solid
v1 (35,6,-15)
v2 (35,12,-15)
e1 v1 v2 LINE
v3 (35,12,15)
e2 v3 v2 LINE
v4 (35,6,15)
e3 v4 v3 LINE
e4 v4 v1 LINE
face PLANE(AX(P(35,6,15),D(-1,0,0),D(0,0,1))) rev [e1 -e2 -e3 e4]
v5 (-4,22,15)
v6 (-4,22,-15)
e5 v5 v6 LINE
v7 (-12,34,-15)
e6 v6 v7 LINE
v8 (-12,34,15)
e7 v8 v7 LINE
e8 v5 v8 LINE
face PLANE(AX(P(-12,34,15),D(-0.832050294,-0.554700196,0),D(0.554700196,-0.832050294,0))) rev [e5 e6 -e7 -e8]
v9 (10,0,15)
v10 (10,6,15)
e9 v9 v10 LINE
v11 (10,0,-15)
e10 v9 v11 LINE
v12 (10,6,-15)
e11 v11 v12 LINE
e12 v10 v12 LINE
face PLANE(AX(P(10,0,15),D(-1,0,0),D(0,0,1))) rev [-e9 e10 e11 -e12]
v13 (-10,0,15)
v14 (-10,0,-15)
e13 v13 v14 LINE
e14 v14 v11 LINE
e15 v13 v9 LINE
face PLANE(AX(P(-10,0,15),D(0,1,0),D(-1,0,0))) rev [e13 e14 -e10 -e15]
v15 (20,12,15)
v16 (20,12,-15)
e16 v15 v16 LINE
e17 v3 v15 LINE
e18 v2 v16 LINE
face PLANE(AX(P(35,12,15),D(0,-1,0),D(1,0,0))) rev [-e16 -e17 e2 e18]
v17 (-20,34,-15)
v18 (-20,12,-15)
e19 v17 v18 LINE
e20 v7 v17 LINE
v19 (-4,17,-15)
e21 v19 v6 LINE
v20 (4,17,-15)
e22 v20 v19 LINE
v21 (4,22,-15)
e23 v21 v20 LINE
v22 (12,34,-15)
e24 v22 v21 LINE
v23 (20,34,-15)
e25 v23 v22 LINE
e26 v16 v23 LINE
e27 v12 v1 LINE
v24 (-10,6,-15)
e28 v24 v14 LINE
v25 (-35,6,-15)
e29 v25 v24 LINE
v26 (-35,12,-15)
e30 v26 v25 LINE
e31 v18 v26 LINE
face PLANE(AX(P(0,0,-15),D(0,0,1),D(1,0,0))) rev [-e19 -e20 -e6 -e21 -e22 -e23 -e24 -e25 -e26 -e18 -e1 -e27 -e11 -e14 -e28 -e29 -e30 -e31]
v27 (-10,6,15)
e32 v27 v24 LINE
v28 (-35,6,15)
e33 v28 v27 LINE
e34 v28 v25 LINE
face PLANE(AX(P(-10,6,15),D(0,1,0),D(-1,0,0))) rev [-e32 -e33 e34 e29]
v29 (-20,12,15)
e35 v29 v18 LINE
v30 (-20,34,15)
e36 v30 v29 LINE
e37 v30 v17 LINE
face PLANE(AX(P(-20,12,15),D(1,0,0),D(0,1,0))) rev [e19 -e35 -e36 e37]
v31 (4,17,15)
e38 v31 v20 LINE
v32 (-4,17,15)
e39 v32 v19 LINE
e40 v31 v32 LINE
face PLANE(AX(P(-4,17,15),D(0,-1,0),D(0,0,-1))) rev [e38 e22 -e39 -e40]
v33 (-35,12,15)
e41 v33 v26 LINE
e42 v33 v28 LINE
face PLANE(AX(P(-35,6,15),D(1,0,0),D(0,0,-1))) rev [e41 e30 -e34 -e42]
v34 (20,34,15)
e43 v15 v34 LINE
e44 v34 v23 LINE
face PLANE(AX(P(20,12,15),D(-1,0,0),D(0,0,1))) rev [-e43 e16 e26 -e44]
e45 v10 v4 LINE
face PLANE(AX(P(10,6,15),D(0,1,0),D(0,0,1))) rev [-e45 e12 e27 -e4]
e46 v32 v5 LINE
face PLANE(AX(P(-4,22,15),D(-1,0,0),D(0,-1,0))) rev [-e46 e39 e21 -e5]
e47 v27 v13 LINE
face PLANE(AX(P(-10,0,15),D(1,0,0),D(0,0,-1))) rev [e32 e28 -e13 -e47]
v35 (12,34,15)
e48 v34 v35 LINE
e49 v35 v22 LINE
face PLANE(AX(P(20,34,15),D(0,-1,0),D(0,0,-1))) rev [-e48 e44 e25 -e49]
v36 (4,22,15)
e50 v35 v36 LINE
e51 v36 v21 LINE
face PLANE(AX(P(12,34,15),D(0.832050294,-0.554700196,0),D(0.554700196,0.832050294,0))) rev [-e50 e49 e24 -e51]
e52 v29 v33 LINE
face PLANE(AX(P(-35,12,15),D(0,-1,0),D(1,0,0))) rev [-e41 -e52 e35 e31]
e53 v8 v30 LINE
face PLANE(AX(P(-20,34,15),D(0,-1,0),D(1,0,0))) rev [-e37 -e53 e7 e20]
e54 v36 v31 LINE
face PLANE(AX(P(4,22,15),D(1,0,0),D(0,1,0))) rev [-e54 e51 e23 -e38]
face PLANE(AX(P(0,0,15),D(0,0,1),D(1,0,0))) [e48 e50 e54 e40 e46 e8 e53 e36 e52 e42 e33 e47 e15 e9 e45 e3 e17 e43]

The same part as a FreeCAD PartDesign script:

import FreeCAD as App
import Part
import Sketcher
from FreeCAD import Vector

doc = App.newDocument("Part")
body = doc.addObject("PartDesign::Body", "Body")

# Sketch on XY plane
sketch1 = body.newObject("Sketcher::SketchObject", "Sketch")
sketch1.AttachmentSupport = (doc.getObject("XY_Plane"), [""])
sketch1.MapMode = "FlatFace"
sketch1.addGeometry([
    Part.LineSegment(Vector(-10, 0, 0), Vector(10, 0, 0)),  # 0
    Part.LineSegment(Vector(10, 0, 0), Vector(10, 6, 0)),  # 1
    Part.LineSegment(Vector(10, 6, 0), Vector(35, 6, 0)),  # 2
    Part.LineSegment(Vector(35, 6, 0), Vector(35, 12, 0)),  # 3
    Part.LineSegment(Vector(35, 12, 0), Vector(20, 12, 0)),  # 4
    Part.LineSegment(Vector(20, 12, 0), Vector(20, 34, 0)),  # 5
    Part.LineSegment(Vector(20, 34, 0), Vector(12, 34, 0)),  # 6
    Part.LineSegment(Vector(12, 34, 0), Vector(4, 22, 0)),  # 7
    Part.LineSegment(Vector(4, 22, 0), Vector(4, 17, 0)),  # 8
    Part.LineSegment(Vector(4, 17, 0), Vector(-4, 17, 0)),  # 9
    Part.LineSegment(Vector(-4, 17, 0), Vector(-4, 22, 0)),  # 10
    Part.LineSegment(Vector(-4, 22, 0), Vector(-12, 34, 0)),  # 11
    Part.LineSegment(Vector(-12, 34, 0), Vector(-20, 34, 0)),  # 12
    Part.LineSegment(Vector(-20, 34, 0), Vector(-20, 12, 0)),  # 13
    Part.LineSegment(Vector(-20, 12, 0), Vector(-35, 12, 0)),  # 14
    Part.LineSegment(Vector(-35, 12, 0), Vector(-35, 6, 0)),  # 15
    Part.LineSegment(Vector(-35, 6, 0), Vector(-10, 6, 0)),  # 16
    Part.LineSegment(Vector(-10, 6, 0), Vector(-10, 0, 0)),  # 17
], False)
sketch1.addConstraint([
    Sketcher.Constraint("Coincident", 0, 2, 1, 1),
    Sketcher.Constraint("Coincident", 1, 2, 2, 1),
    Sketcher.Constraint("Coincident", 2, 2, 3, 1),
    Sketcher.Constraint("Coincident", 3, 2, 4, 1),
    Sketcher.Constraint("Coincident", 4, 2, 5, 1),
    Sketcher.Constraint("Coincident", 5, 2, 6, 1),
    Sketcher.Constraint("Coincident", 6, 2, 7, 1),
    Sketcher.Constraint("Coincident", 7, 2, 8, 1),
    Sketcher.Constraint("Coincident", 8, 2, 9, 1),
    Sketcher.Constraint("Coincident", 9, 2, 10, 1),
    Sketcher.Constraint("Coincident", 10, 2, 11, 1),
    Sketcher.Constraint("Coincident", 11, 2, 12, 1),
    Sketcher.Constraint("Coincident", 12, 2, 13, 1),
    Sketcher.Constraint("Coincident", 13, 2, 14, 1),
    Sketcher.Constraint("Coincident", 14, 2, 15, 1),
    Sketcher.Constraint("Coincident", 15, 2, 16, 1),
    Sketcher.Constraint("Coincident", 16, 2, 17, 1),
    Sketcher.Constraint("Coincident", 17, 2, 0, 1),
    Sketcher.Constraint("Horizontal", 0),
    Sketcher.Constraint("Vertical", 1),
    Sketcher.Constraint("Horizontal", 2),
    Sketcher.Constraint("Vertical", 3),
    Sketcher.Constraint("Horizontal", 4),
    Sketcher.Constraint("Vertical", 5),
    Sketcher.Constraint("Horizontal", 6),
    Sketcher.Constraint("Vertical", 8),
    Sketcher.Constraint("Horizontal", 9),
    Sketcher.Constraint("Vertical", 10),
    Sketcher.Constraint("Horizontal", 12),
    Sketcher.Constraint("Vertical", 13),
    Sketcher.Constraint("Horizontal", 14),
    Sketcher.Constraint("Vertical", 15),
    Sketcher.Constraint("Horizontal", 16),
    Sketcher.Constraint("Vertical", 17),
    Sketcher.Constraint("Symmetric", 0, 2, 17, 2, -1, 1),
    Sketcher.Constraint("Symmetric", 7, 2, 10, 2, -2),
    Sketcher.Constraint("Symmetric", 6, 2, 11, 2, -2),
    Sketcher.Constraint("Symmetric", 4, 2, 13, 2, -2),
    Sketcher.Constraint("Symmetric", 2, 2, 15, 2, -2),
    Sketcher.Constraint("Equal", 6, 9),
    Sketcher.Constraint("Equal", 1, 3),
    Sketcher.Constraint("DistanceX", 0, 1, 0, 2, 20.0),
    Sketcher.Constraint("DistanceX", 2, 1, 2, 2, 25.0),
    Sketcher.Constraint("DistanceX", 4, 2, 4, 1, 15.0),
    Sketcher.Constraint("DistanceX", 6, 2, 6, 1, 8.0),
    Sketcher.Constraint("DistanceY", 1, 1, 1, 2, 6.0),
    Sketcher.Constraint("DistanceY", 5, 1, 5, 2, 22.0),
    Sketcher.Constraint("DistanceY", 8, 2, 8, 1, 5.0),
    Sketcher.Constraint("DistanceY", -1, 1, 7, 2, 22.0),
])
pad1 = body.newObject("PartDesign::Pad", "Pad")
pad1.Profile = sketch1
pad1.Length = 30
pad1.Midplane = True

doc.recompute()
